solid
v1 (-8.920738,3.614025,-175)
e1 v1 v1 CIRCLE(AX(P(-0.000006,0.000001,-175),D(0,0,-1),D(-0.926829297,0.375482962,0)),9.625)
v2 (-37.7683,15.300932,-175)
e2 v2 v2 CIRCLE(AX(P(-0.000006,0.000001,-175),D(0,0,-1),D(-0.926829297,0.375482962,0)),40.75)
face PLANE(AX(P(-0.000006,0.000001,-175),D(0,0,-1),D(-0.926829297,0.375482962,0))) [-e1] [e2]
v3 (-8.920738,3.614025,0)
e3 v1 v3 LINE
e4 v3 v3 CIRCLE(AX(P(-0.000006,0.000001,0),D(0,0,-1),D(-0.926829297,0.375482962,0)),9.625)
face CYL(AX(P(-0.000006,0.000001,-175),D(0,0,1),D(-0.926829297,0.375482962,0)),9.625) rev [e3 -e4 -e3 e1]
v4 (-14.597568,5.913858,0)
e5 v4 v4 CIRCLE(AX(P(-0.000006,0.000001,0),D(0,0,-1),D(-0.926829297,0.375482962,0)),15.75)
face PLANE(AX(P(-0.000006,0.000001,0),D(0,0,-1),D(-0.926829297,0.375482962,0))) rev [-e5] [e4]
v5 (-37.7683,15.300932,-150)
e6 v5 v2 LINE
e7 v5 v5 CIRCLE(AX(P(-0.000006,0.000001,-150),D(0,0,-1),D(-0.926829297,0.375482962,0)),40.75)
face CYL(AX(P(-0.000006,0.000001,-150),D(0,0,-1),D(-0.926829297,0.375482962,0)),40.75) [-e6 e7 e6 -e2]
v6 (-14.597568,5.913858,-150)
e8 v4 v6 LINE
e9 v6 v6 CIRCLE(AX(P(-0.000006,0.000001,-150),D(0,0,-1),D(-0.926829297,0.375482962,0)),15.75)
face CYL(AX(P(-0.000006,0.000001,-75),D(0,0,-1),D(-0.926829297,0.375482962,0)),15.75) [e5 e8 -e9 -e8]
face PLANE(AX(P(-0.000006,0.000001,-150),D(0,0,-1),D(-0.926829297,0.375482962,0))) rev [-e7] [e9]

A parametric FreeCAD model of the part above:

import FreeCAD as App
import Part
import Sketcher

V = App.Vector
Q = App.Units.Quantity


def add_polygon(sketch, points):
    """Adds a closed chain of lines whose ends are joined by coincident constraints."""
    first, n = sketch.GeometryCount, len(points)
    for a, b in zip(points, points[1:] + points[:1]):
        sketch.addGeometry(Part.LineSegment(App.Vector(*a, 0), App.Vector(*b, 0)), False)
    for i in range(n):
        sketch.addConstraint(Sketcher.Constraint("Coincident", first + i, 2, first + (i + 1) % n, 1))

doc = App.newDocument("Part")
body = doc.addObject("PartDesign::Body", "Body")

# Sketch on XZ plane
sketch1 = doc.addObject("Sketcher::SketchObject", "Sketch")
body.addObject(sketch1)
sketch1.AttachmentSupport = (doc.XZ_Plane, [""])
sketch1.MapMode = "FlatFace"
add_polygon(sketch1, [(10, 0), (16, 0), (16, 150), (41, 150), (41, 175), (10, 175)])  # lines 0-5
sketch1.addConstraint(Sketcher.Constraint("Horizontal", 0))
sketch1.addConstraint(Sketcher.Constraint("Vertical", 1))
sketch1.addConstraint(Sketcher.Constraint("Horizontal", 2))
sketch1.addConstraint(Sketcher.Constraint("Vertical", 3))
sketch1.addConstraint(Sketcher.Constraint("Horizontal", 4))
sketch1.addConstraint(Sketcher.Constraint("Vertical", 5))
sketch1.addConstraint(Sketcher.Constraint("PointOnObject", 0, 2, -1))
sketch1.addConstraint(Sketcher.Constraint("Equal", 2, 3))
sketch1.addConstraint(Sketcher.Constraint("DistanceX", 2, 1, 2, 2, Q("25 mm")))
sketch1.addConstraint(Sketcher.Constraint("DistanceY", 1, 1, 1, 2, Q("150 mm")))
sketch1.addConstraint(Sketcher.Constraint("DistanceX", 0, 1, 0, 2, Q("6.125 mm")))
sketch1.addConstraint(Sketcher.Constraint("DistanceX", -1, 1, 0, 2, Q("15.75 mm")))
revolution = doc.addObject("PartDesign::Revolution", "Revolution")
body.addObject(revolution)
revolution.Profile = sketch1
revolution.ReferenceAxis = (sketch1, ["V_Axis"])
revolution.Angle = 360
body2 = doc.addObject("PartDesign::Body", "Body001")
doc.recompute()

body.Placement = App.Placement(V(-0.000006, 0.000001, 0), App.Rotation(V(0.191272977, 0.981536881, 0), 180))
boolean = doc.addObject("PartDesign::Boolean", "Boolean")
body2.addObject(boolean)
boolean.Type = "Fuse"
boolean.addObjects([body])

doc.recompute()
